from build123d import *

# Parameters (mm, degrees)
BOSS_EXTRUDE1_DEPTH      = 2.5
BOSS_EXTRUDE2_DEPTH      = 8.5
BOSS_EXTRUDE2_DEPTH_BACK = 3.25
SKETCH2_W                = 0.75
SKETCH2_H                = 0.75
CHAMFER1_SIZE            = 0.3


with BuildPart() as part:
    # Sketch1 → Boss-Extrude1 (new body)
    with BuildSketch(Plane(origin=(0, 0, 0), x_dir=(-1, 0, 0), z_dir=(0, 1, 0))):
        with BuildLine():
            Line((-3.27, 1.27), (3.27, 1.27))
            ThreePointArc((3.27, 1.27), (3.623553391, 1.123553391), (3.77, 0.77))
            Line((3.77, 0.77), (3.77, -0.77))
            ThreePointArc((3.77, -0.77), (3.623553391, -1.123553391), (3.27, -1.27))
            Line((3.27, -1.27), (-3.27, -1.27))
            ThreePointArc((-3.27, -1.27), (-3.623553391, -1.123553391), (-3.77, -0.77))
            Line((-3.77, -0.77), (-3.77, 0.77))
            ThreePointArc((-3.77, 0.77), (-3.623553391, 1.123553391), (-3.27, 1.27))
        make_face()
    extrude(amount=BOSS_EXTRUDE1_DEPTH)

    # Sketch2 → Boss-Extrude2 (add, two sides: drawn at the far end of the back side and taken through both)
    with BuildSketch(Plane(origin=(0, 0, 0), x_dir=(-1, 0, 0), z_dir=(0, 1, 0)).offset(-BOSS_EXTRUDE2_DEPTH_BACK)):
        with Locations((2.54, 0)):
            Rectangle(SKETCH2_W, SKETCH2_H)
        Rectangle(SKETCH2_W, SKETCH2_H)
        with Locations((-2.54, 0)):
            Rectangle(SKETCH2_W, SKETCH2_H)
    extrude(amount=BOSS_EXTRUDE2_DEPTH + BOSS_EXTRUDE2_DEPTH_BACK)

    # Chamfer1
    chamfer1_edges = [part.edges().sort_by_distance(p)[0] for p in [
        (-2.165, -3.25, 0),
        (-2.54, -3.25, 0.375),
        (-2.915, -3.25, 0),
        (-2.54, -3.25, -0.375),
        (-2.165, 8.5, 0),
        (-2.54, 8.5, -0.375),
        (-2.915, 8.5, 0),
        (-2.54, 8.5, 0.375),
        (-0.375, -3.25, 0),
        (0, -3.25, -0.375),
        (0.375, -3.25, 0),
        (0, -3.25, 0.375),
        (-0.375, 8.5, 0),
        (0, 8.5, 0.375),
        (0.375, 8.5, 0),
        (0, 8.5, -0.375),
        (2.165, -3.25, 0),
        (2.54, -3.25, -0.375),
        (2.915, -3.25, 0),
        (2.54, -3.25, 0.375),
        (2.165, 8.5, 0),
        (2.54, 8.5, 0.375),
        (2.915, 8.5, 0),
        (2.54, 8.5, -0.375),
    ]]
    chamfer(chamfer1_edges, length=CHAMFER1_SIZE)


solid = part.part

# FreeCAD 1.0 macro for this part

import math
import FreeCAD as App
import Part
import Sketcher
from FreeCAD import Vector
Q = App.Units.Quantity


def edges_at(feature, points):
    """Names of the edges that pass closest to the given points."""
    edges = feature.Shape.Edges
    near = lambda p: min(range(len(edges)), key=lambda i: edges[i].distToShape(Part.Vertex(*p))[0])
    return sorted({f"Edge{near(p) + 1}" for p in points})


def add_polygon(sketch, points):
    """Adds a closed chain of lines whose ends are joined by coincident constraints."""
    first, n = sketch.GeometryCount, len(points)
    for a, b in zip(points, points[1:] + points[:1]):
        sketch.addGeometry(Part.LineSegment(App.Vector(*a, 0), App.Vector(*b, 0)), False)
    for i in range(n):
        sketch.addConstraint(Sketcher.Constraint("Coincident", first + i, 2, first + (i + 1) % n, 1))

doc = App.newDocument("Part")
body = doc.addObject("PartDesign::Body", "Body")

# Sketch on XZ plane
sketch1 = body.newObject("Sketcher::SketchObject", "Sketch")
sketch1.AttachmentSupport = (doc.getObject("XZ_Plane"), [""])
sketch1.MapMode = "FlatFace"
sketch1.addGeometry([
    Part.LineSegment(Vector(-3.27, 1.27, 0), Vector(3.27, 1.27, 0)),  # 0
    Part.ArcOfCircle(Part.Circle(Vector(3.27, 0.77, 0), Vector(0, 0, 1), 0.5), math.radians(0), math.radians(90)),  # 1
    Part.LineSegment(Vector(3.77, 0.77, 0), Vector(3.77, -0.77, 0)),  # 2
    Part.ArcOfCircle(Part.Circle(Vector(3.27, -0.77, 0), Vector(0, 0, 1), 0.5), math.radians(-90), math.radians(0)),  # 3
    Part.LineSegment(Vector(3.27, -1.27, 0), Vector(-3.27, -1.27, 0)),  # 4
    Part.ArcOfCircle(Part.Circle(Vector(-3.27, -0.77, 0), Vector(0, 0, 1), 0.5), math.radians(180), math.radians(270)),  # 5
    Part.LineSegment(Vector(-3.77, -0.77, 0), Vector(-3.77, 0.77, 0)),  # 6
    Part.ArcOfCircle(Part.Circle(Vector(-3.27, 0.77, 0), Vector(0, 0, 1), 0.5), math.radians(90), math.radians(180)),  # 7
], False)
sketch1.addConstraint([
    Sketcher.Constraint("Tangent", 0, 2, 1, 2),
    Sketcher.Constraint("Tangent", 1, 1, 2, 1),
    Sketcher.Constraint("Tangent", 2, 2, 3, 2),
    Sketcher.Constraint("Tangent", 3, 1, 4, 1),
    Sketcher.Constraint("Tangent", 4, 2, 5, 2),
    Sketcher.Constraint("Tangent", 5, 1, 6, 1),
    Sketcher.Constraint("Tangent", 6, 2, 7, 2),
    Sketcher.Constraint("Tangent", 7, 1, 0, 1),
    Sketcher.Constraint("Horizontal", 0),
    Sketcher.Constraint("Vertical", 2),
    Sketcher.Constraint("Horizontal", 4),
    Sketcher.Constraint("Vertical", 6),
    Sketcher.Constraint("Equal", 1, 3),
    Sketcher.Constraint("Equal", 3, 5),
    Sketcher.Constraint("Equal", 5, 7),
    Sketcher.Constraint("Symmetric", 1, 3, 5, 3, -1, 1),
    Sketcher.Constraint("Radius", 1, Q("0.5 mm")),
    Sketcher.Constraint("DistanceX", 0, 1, 0, 2, Q("6.54 mm")),
    Sketcher.Constraint("DistanceY", 2, 2, 2, 1, Q("1.54 mm")),
])
pad1 = body.newObject("PartDesign::Pad", "Pad")
pad1.Profile = sketch1
pad1.Length = 2.5
pad1.Reversed = True

# Sketch on XZ plane
sketch2 = body.newObject("Sketcher::SketchObject", "Sketch001")
sketch2.AttachmentSupport = (doc.getObject("XZ_Plane"), [""])
sketch2.MapMode = "FlatFace"
add_polygon(sketch2, [(-2.2, 0.4), (-2.2, -0.4), (-2.9, -0.4), (-2.9, 0.4)])  # lines 0-3
add_polygon(sketch2, [(0.4, 0.4), (0.4, -0.4), (-0.4, -0.4), (-0.4, 0.4)])  # lines 4-7
add_polygon(sketch2, [(2.9, 0.4), (2.9, -0.4), (2.2, -0.4), (2.2, 0.4)])  # lines 8-11
sketch2.addConstraint([
    Sketcher.Constraint("Vertical", 0),
    Sketcher.Constraint("Horizontal", 1),
    Sketcher.Constraint("Vertical", 2),
    Sketcher.Constraint("Horizontal", 3),
    Sketcher.Constraint("Vertical", 4),
    Sketcher.Constraint("Horizontal", 5),
    Sketcher.Constraint("Vertical", 6),
    Sketcher.Constraint("Horizontal", 7),
    Sketcher.Constraint("Vertical", 8),
    Sketcher.Constraint("Horizontal", 9),
    Sketcher.Constraint("Vertical", 10),
    Sketcher.Constraint("Horizontal", 11),
    Sketcher.Constraint("Symmetric", 4, 2, 6, 2, -1, 1),
    Sketcher.Constraint("Symmetric", 2, 2, 8, 2, -1, 1),
    Sketcher.Constraint("Symmetric", 0, 2, 10, 2, -1, 1),
    Sketcher.Constraint("Horizontal", 1, 2, 4, 2),
    Sketcher.Constraint("Horizontal", 3, 2, 6, 2),
    Sketcher.Constraint("Equal", 3, 5),
    Sketcher.Constraint("Equal", 11, 0),
    Sketcher.Constraint("DistanceX", 1, 2, 1, 1, Q("0.75 mm")),
    Sketcher.Constraint("DistanceX", 0, 2, 4, 2, Q("2.54 mm")),
])
pad2 = body.newObject("PartDesign::Pad", "Pad001")
pad2.Profile = sketch2
pad2.Type = "TwoLengths"
pad2.Length = 8.5
pad2.Length2 = 3.25
pad2.Reversed = True
doc.recompute()

chamfer = body.newObject("PartDesign::Chamfer", "Chamfer")
chamfer.Base = (pad2, edges_at(pad2, [
    (-2.165, -3.25, 0),
    (-2.54, -3.25, 0.375),
    (-2.915, -3.25, 0),
    (-2.54, -3.25, -0.375),
    (-2.165, 8.5, 0),
    (-2.54, 8.5, -0.375),
    (-2.915, 8.5, 0),
    (-2.54, 8.5, 0.375),
    (-0.375, -3.25, 0),
    (0, -3.25, -0.375),
    (0.375, -3.25, 0),
    (0, -3.25, 0.375),
    (-0.375, 8.5, 0),
    (0, 8.5, 0.375),
    (0.375, 8.5, 0),
    (0, 8.5, -0.375),
    (2.165, -3.25, 0),
    (2.54, -3.25, -0.375),
    (2.915, -3.25, 0),
    (2.54, -3.25, 0.375),
    (2.165, 8.5, 0),
    (2.54, 8.5, 0.375),
    (2.915, 8.5, 0),
    (2.54, 8.5, -0.375),
]))
chamfer.Size = 0.3

doc.recompute()
